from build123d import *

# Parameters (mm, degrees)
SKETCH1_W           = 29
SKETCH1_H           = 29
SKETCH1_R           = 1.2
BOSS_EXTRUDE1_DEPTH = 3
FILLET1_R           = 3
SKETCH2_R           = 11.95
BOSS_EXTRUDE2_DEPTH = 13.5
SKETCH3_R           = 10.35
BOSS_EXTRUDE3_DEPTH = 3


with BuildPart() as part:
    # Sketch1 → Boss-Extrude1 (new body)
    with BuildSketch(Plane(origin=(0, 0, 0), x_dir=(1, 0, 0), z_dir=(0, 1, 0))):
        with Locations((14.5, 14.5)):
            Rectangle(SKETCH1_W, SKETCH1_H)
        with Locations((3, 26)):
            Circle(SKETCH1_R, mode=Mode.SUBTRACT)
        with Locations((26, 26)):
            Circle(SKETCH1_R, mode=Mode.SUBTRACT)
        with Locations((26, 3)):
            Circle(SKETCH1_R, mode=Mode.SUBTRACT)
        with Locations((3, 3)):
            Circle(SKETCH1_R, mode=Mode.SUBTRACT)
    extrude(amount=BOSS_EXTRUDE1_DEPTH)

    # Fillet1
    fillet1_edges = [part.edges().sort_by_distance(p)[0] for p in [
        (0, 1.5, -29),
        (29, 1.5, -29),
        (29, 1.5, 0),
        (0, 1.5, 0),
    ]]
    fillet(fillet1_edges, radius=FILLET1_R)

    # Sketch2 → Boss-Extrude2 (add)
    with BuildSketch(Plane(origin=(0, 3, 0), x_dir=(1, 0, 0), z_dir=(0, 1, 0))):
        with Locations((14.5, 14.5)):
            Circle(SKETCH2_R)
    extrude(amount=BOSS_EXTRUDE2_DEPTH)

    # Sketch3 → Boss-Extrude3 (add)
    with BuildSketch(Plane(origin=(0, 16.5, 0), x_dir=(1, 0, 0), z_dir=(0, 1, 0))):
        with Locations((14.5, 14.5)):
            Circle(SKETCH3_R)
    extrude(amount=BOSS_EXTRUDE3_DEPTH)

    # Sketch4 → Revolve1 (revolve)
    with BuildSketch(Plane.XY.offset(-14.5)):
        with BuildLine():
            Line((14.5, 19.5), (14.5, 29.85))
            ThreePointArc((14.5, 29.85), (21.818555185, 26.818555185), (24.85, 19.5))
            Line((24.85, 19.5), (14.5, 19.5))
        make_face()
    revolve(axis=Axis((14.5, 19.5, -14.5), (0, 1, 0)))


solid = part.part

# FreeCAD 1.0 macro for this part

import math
import FreeCAD as App
import Part
import Sketcher
from FreeCAD import Vector


def edges_at(feature, points):
    """Names of the edges that pass closest to the given points."""
    edges = feature.Shape.Edges
    near = lambda p: min(range(len(edges)), key=lambda i: edges[i].distToShape(Part.Vertex(*p))[0])
    return sorted({f"Edge{near(p) + 1}" for p in points})

doc = App.newDocument("Part")
body = doc.addObject("PartDesign::Body", "Body")

# Sketch on XZ plane
sketch1 = body.newObject("Sketcher::SketchObject", "Sketch")
sketch1.AttachmentSupport = (doc.getObject("XZ_Plane"), [""])
sketch1.MapMode = "FlatFace"
sketch1.addGeometry(Part.LineSegment(Vector(0, -29, 0), Vector(0, 0, 0)), False)
sketch1.addGeometry(Part.LineSegment(Vector(0, 0, 0), Vector(29, 0, 0)), False)
sketch1.addGeometry(Part.LineSegment(Vector(29, 0, 0), Vector(29, -29, 0)), False)
sketch1.addGeometry(Part.LineSegment(Vector(29, -29, 0), Vector(0, -29, 0)), False)
sketch1.addGeometry(Part.Circle(Vector(3, -3, 0), Vector(0, 0, 1), 1.2), False)
sketch1.addGeometry(Part.Circle(Vector(26, -3, 0), Vector(0, 0, 1), 1.2), False)
sketch1.addGeometry(Part.Circle(Vector(3, -26, 0), Vector(0, 0, 1), 1.2), False)
sketch1.addGeometry(Part.Circle(Vector(26, -26, 0), Vector(0, 0, 1), 1.2), False)
sketch1.addConstraint(Sketcher.Constraint("Coincident", 0, 2, 1, 1))
sketch1.addConstraint(Sketcher.Constraint("Coincident", 1, 2, 2, 1))
sketch1.addConstraint(Sketcher.Constraint("Coincident", 2, 2, 3, 1))
sketch1.addConstraint(Sketcher.Constraint("Coincident", 3, 2, 0, 1))
sketch1.addConstraint(Sketcher.Constraint("Vertical", 0))
sketch1.addConstraint(Sketcher.Constraint("Horizontal", 1))
sketch1.addConstraint(Sketcher.Constraint("Vertical", 2))
sketch1.addConstraint(Sketcher.Constraint("Horizontal", 3))
sketch1.addConstraint(Sketcher.Constraint("Coincident", 0, 2, -1, 1))
sketch1.addConstraint(Sketcher.Constraint("Equal", 4, 5))
sketch1.addConstraint(Sketcher.Constraint("Equal", 5, 6))
sketch1.addConstraint(Sketcher.Constraint("Equal", 6, 7))
sketch1.addConstraint(Sketcher.Constraint("Horizontal", 4, 3, 5, 3))
sketch1.addConstraint(Sketcher.Constraint("Horizontal", 6, 3, 7, 3))
sketch1.addConstraint(Sketcher.Constraint("Vertical", 4, 3, 6, 3))
sketch1.addConstraint(Sketcher.Constraint("Vertical", 5, 3, 7, 3))
sketch1.addConstraint(Sketcher.Constraint("Equal", 3, 0))
sketch1.addConstraint(Sketcher.Constraint("Diameter", 4, 2.4))
sketch1.addConstraint(Sketcher.Constraint("DistanceX", 1, 1, 1, 2, 29.0))
sketch1.addConstraint(Sketcher.Constraint("DistanceX", -1, 1, 4, 3, 3.0))
sketch1.addConstraint(Sketcher.Constraint("DistanceY", 4, 3, -1, 1, 3.0))
sketch1.addConstraint(Sketcher.Constraint("DistanceX", -1, 1, 5, 3, 26.0))
sketch1.addConstraint(Sketcher.Constraint("DistanceY", 6, 3, -1, 1, 26.0))
pad1 = body.newObject("PartDesign::Pad", "Pad")
pad1.Profile = sketch1
pad1.Length = 3
pad1.Reversed = True
doc.recompute()

fillet = body.newObject("PartDesign::Fillet", "Fillet")
fillet.Base = (pad1, edges_at(pad1, [
    (0, 1.5, -29),
    (29, 1.5, -29),
    (29, 1.5, 0),
    (0, 1.5, 0),
]))
fillet.Radius = 3

# Sketch on XZ plane
sketch2 = body.newObject("Sketcher::SketchObject", "Sketch001")
sketch2.AttachmentSupport = (doc.getObject("XZ_Plane"), [""])
sketch2.MapMode = "FlatFace"
sketch2.AttachmentOffset = App.Placement(Vector(0, 0, -3), App.Rotation())
sketch2.addGeometry(Part.Circle(Vector(14, -14, 0), Vector(0, 0, 1), 12), False)
sketch2.addConstraint(Sketcher.Constraint("Diameter", 0, 23.9))
sketch2.addConstraint(Sketcher.Constraint("DistanceX", -1, 1, 0, 3, 14.5))
sketch2.addConstraint(Sketcher.Constraint("DistanceY", 0, 3, -1, 1, 14.5))
pad2 = body.newObject("PartDesign::Pad", "Pad001")
pad2.Profile = sketch2
pad2.Length = 13.5
pad2.Reversed = True

# Sketch on XZ plane
sketch3 = body.newObject("Sketcher::SketchObject", "Sketch002")
sketch3.AttachmentSupport = (doc.getObject("XZ_Plane"), [""])
sketch3.MapMode = "FlatFace"
sketch3.AttachmentOffset = App.Placement(Vector(0, 0, -16.5), App.Rotation())
sketch3.addGeometry(Part.Circle(Vector(14, -14, 0), Vector(0, 0, 1), 10), False)
sketch3.addConstraint(Sketcher.Constraint("Diameter", 0, 20.7))
sketch3.addConstraint(Sketcher.Constraint("DistanceX", -1, 1, 0, 3, 14.5))
sketch3.addConstraint(Sketcher.Constraint("DistanceY", 0, 3, -1, 1, 14.5))
pad3 = body.newObject("PartDesign::Pad", "Pad002")
pad3.Profile = sketch3
pad3.Length = 3
pad3.Reversed = True

# Sketch on XY plane
sketch4 = body.newObject("Sketcher::SketchObject", "Sketch003")
sketch4.AttachmentSupport = (doc.getObject("XY_Plane"), [""])
sketch4.MapMode = "FlatFace"
sketch4.AttachmentOffset = App.Placement(Vector(0, 0, -14.5), App.Rotation())
sketch4.addGeometry(Part.LineSegment(Vector(14, 30, 0), Vector(14, 20, 0)), False)
sketch4.addGeometry(Part.LineSegment(Vector(14, 20, 0), Vector(25, 20, 0)), False)
sketch4.addGeometry(Part.ArcOfCircle(Part.Circle(Vector(14, 19, 0), Vector(0, 0, 1), 10), math.radians(0), math.radians(90)), False)
sketch4.addGeometry(Part.LineSegment(Vector(14, 19, 0), Vector(14, 30, 0)), True)  # axis
sketch4.addConstraint(Sketcher.Constraint("Coincident", 0, 2, 1, 1))
sketch4.addConstraint(Sketcher.Constraint("Coincident", 1, 2, 2, 1))
sketch4.addConstraint(Sketcher.Constraint("Coincident", 2, 2, 0, 1))
sketch4.addConstraint(Sketcher.Constraint("Vertical", 0))
sketch4.addConstraint(Sketcher.Constraint("Horizontal", 1))
sketch4.addConstraint(Sketcher.Constraint("Vertical", 3))
sketch4.addConstraint(Sketcher.Constraint("Coincident", 0, 2, 2, 3))
sketch4.addConstraint(Sketcher.Constraint("Coincident", 3, 1, 2, 3))
sketch4.addConstraint(Sketcher.Constraint("Equal", 0, 3))
sketch4.addConstraint(Sketcher.Constraint("Radius", 2, 10.35))
sketch4.addConstraint(Sketcher.Constraint("DistanceX", -1, 1, 2, 3, 14.5))
sketch4.addConstraint(Sketcher.Constraint("DistanceY", -1, 1, 2, 3, 19.5))
revolution = body.newObject("PartDesign::Revolution", "Revolution")
revolution.Profile = sketch4
revolution.ReferenceAxis = (sketch4, ["Axis0"])
revolution.Angle = 360

doc.recompute()
